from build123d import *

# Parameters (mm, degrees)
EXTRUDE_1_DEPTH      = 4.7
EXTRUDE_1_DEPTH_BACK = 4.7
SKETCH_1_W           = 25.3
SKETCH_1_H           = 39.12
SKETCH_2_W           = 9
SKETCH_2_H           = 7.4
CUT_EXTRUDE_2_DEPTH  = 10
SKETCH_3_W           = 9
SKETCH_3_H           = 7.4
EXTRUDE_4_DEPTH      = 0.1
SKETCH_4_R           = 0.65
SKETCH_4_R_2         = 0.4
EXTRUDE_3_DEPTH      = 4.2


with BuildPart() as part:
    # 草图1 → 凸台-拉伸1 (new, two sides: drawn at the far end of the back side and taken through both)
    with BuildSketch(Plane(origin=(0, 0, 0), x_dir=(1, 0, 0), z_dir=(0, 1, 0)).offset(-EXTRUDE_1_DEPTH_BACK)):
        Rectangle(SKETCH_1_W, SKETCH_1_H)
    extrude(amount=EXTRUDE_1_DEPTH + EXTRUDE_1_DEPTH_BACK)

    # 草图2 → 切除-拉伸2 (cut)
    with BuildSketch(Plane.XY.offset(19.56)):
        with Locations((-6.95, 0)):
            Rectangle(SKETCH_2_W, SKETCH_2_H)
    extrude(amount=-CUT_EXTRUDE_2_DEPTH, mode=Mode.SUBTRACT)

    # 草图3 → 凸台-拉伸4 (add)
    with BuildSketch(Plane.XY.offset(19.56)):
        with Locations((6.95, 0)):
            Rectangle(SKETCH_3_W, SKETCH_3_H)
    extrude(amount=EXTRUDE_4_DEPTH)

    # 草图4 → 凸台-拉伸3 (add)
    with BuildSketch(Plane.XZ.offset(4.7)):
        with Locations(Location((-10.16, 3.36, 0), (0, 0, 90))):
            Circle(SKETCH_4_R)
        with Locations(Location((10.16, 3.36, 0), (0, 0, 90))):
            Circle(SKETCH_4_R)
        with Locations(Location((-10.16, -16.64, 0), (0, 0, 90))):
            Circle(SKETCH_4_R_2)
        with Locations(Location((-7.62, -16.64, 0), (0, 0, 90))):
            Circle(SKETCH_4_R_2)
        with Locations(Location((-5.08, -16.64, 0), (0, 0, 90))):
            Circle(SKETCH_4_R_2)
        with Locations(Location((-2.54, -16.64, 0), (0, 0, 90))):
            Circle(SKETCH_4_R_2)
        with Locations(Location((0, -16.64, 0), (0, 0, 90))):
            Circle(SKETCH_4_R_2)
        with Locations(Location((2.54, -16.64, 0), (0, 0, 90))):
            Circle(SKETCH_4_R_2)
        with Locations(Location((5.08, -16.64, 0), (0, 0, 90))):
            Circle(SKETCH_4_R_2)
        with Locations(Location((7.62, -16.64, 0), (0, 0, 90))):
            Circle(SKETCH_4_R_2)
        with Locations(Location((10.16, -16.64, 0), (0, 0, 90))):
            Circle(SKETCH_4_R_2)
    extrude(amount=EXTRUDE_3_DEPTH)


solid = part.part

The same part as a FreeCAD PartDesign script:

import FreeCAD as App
import Part
import Sketcher
from FreeCAD import Vector
Q = App.Units.Quantity

doc = App.newDocument("Part")
params = doc.addObject("Spreadsheet::Sheet", "Params")
for row, (alias, value) in enumerate([
    ("sketch1_width", "25.3 mm"),
    ("sketch1_height", "39.12 mm"),
    ("pad1_length", "4.7 mm"),
    ("pad1_length2", "4.7 mm"),
    ("sketch2_width", "9 mm"),
    ("sketch2_height", "7.4 mm"),
    ("pocket1_length", "10 mm"),
    ("sketch3_width", "9 mm"),
    ("sketch3_height", "7.4 mm"),
    ("pad2_length", "0.1 mm"),
    ("sketch4_diameter", "1.3 mm"),
    ("sketch4_diameter2", "0.8 mm"),
    ("pad3_length", "4.2 mm"),
], start=1):
    params.set(f"A{row}", alias)
    params.set(f"B{row}", "=" + value)
    params.setAlias(f"B{row}", alias)

body = doc.addObject("PartDesign::Body", "Body")

sketch1 = body.newObject("Sketcher::SketchObject", "Sketch")
sketch1.AttachmentSupport = (doc.getObject("XZ_Plane"), [""])
sketch1.MapMode = "FlatFace"
sketch1.addGeometry([
    Part.LineSegment(Vector(-13, -20, 0), Vector(-13, 20, 0)),
    Part.LineSegment(Vector(-13, 20, 0), Vector(13, 20, 0)),
    Part.LineSegment(Vector(13, 20, 0), Vector(13, -20, 0)),
    Part.LineSegment(Vector(13, -20, 0), Vector(-13, -20, 0)),
], False)
sketch1.addConstraint([
    Sketcher.Constraint("Coincident", 0, 2, 1, 1),
    Sketcher.Constraint("Coincident", 1, 2, 2, 1),
    Sketcher.Constraint("Coincident", 2, 2, 3, 1),
    Sketcher.Constraint("Coincident", 3, 2, 0, 1),
    Sketcher.Constraint("Vertical", 0),
    Sketcher.Constraint("Horizontal", 1),
    Sketcher.Constraint("Vertical", 2),
    Sketcher.Constraint("Horizontal", 3),
    Sketcher.Constraint("Symmetric", 0, 2, 2, 2, -1, 1),
    Sketcher.Constraint("DistanceX", 1, 1, 1, 2, Q("25.3 mm")),
    Sketcher.Constraint("DistanceY", 0, 1, 0, 2, Q("39.12 mm")),
])
sketch1.setExpression("Constraints[9]", "Params.sketch1_width")
sketch1.setExpression("Constraints[10]", "Params.sketch1_height")
pad1 = body.newObject("PartDesign::Pad", "Pad")
pad1.Profile = sketch1
pad1.Type = "TwoLengths"
pad1.setExpression("Length", "Params.pad1_length")
pad1.setExpression("Length2", "Params.pad1_length2")
pad1.Reversed = True

sketch2 = body.newObject("Sketcher::SketchObject", "Sketch001")
sketch2.AttachmentSupport = (doc.getObject("XY_Plane"), [""])
sketch2.MapMode = "FlatFace"
sketch2.AttachmentOffset = App.Placement(Vector(0, 0, 19.56), App.Rotation())
sketch2.addGeometry([
    Part.LineSegment(Vector(-11, 4, 0), Vector(-11, -4, 0)),
    Part.LineSegment(Vector(-11, -4, 0), Vector(-2, -4, 0)),
    Part.LineSegment(Vector(-2, -4, 0), Vector(-2, 4, 0)),
    Part.LineSegment(Vector(-2, 4, 0), Vector(-11, 4, 0)),
], False)
sketch2.addConstraint([
    Sketcher.Constraint("Coincident", 0, 2, 1, 1),
    Sketcher.Constraint("Coincident", 1, 2, 2, 1),
    Sketcher.Constraint("Coincident", 2, 2, 3, 1),
    Sketcher.Constraint("Coincident", 3, 2, 0, 1),
    Sketcher.Constraint("Vertical", 0),
    Sketcher.Constraint("Horizontal", 1),
    Sketcher.Constraint("Vertical", 2),
    Sketcher.Constraint("Horizontal", 3),
    Sketcher.Constraint("DistanceX", 1, 1, 1, 2, Q("9 mm")),
    Sketcher.Constraint("DistanceY", 0, 2, 0, 1, Q("7.4 mm")),
    Sketcher.Constraint("DistanceY", 0, 2, -1, 1, Q("3.7 mm")),
    Sketcher.Constraint("DistanceX", 0, 2, -1, 1, Q("11.45 mm")),
])
sketch2.setExpression("Constraints[8]", "Params.sketch2_width")
sketch2.setExpression("Constraints[9]", "Params.sketch2_height")
pocket1 = body.newObject("PartDesign::Pocket", "Pocket")
pocket1.Profile = sketch2
pocket1.setExpression("Length", "Params.pocket1_length")

sketch3 = body.newObject("Sketcher::SketchObject", "Sketch002")
sketch3.AttachmentSupport = (doc.getObject("XY_Plane"), [""])
sketch3.MapMode = "FlatFace"
sketch3.AttachmentOffset = App.Placement(Vector(0, 0, 19.56), App.Rotation())
sketch3.addGeometry([
    Part.LineSegment(Vector(2, 4, 0), Vector(2, -4, 0)),
    Part.LineSegment(Vector(2, -4, 0), Vector(11, -4, 0)),
    Part.LineSegment(Vector(11, -4, 0), Vector(11, 4, 0)),
    Part.LineSegment(Vector(11, 4, 0), Vector(2, 4, 0)),
], False)
sketch3.addConstraint([
    Sketcher.Constraint("Coincident", 0, 2, 1, 1),
    Sketcher.Constraint("Coincident", 1, 2, 2, 1),
    Sketcher.Constraint("Coincident", 2, 2, 3, 1),
    Sketcher.Constraint("Coincident", 3, 2, 0, 1),
    Sketcher.Constraint("Vertical", 0),
    Sketcher.Constraint("Horizontal", 1),
    Sketcher.Constraint("Vertical", 2),
    Sketcher.Constraint("Horizontal", 3),
    Sketcher.Constraint("DistanceX", 1, 1, 1, 2, Q("9 mm")),
    Sketcher.Constraint("DistanceY", 0, 2, 0, 1, Q("7.4 mm")),
    Sketcher.Constraint("DistanceY", 0, 2, -1, 1, Q("3.7 mm")),
    Sketcher.Constraint("DistanceX", -1, 1, 0, 2, Q("2.45 mm")),
])
sketch3.setExpression("Constraints[8]", "Params.sketch3_width")
sketch3.setExpression("Constraints[9]", "Params.sketch3_height")
pad2 = body.newObject("PartDesign::Pad", "Pad001")
pad2.Profile = sketch3
pad2.setExpression("Length", "Params.pad2_length")

sketch4 = body.newObject("Sketcher::SketchObject", "Sketch003")
sketch4.AttachmentSupport = (doc.getObject("XZ_Plane"), [""])
sketch4.MapMode = "FlatFace"
sketch4.AttachmentOffset = App.Placement(Vector(0, 0, 4.7), App.Rotation())
sketch4.addGeometry([
    Part.Circle(Vector(-10.16, 3.36, 0), Vector(0, 0, 1), 0.65),
    Part.Circle(Vector(10.16, 3.36, 0), Vector(0, 0, 1), 0.65),
    Part.Circle(Vector(-10.16, -16.64, 0), Vector(0, 0, 1), 0.4),
    Part.Circle(Vector(-7.62, -16.64, 0), Vector(0, 0, 1), 0.4),
    Part.Circle(Vector(-5.08, -16.64, 0), Vector(0, 0, 1), 0.4),
    Part.Circle(Vector(-2.54, -16.64, 0), Vector(0, 0, 1), 0.4),
    Part.Circle(Vector(0, -16.64, 0), Vector(0, 0, 1), 0.4),
    Part.Circle(Vector(2.54, -16.64, 0), Vector(0, 0, 1), 0.4),
    Part.Circle(Vector(5.08, -16.64, 0), Vector(0, 0, 1), 0.4),
    Part.Circle(Vector(7.62, -16.64, 0), Vector(0, 0, 1), 0.4),
    Part.Circle(Vector(10.16, -16.64, 0), Vector(0, 0, 1), 0.4),
], False)
sketch4.addConstraint([
    Sketcher.Constraint("Equal", 0, 1),
    Sketcher.Constraint("Equal", 2, 3),
    Sketcher.Constraint("Equal", 3, 4),
    Sketcher.Constraint("Equal", 4, 5),
    Sketcher.Constraint("Equal", 5, 6),
    Sketcher.Constraint("Equal", 6, 7),
    Sketcher.Constraint("Equal", 7, 8),
    Sketcher.Constraint("Equal", 8, 9),
    Sketcher.Constraint("Equal", 9, 10),
    Sketcher.Constraint("Symmetric", 0, 3, 1, 3, -2),
    Sketcher.Constraint("Symmetric", 5, 3, 7, 3, -2),
    Sketcher.Constraint("Symmetric", 4, 3, 8, 3, -2),
    Sketcher.Constraint("Symmetric", 3, 3, 9, 3, -2),
    Sketcher.Constraint("Symmetric", 2, 3, 10, 3, -2),
    Sketcher.Constraint("PointOnObject", 6, 3, -2),
    Sketcher.Constraint("Horizontal", 2, 3, 3, 3),
    Sketcher.Constraint("Horizontal", 3, 3, 4, 3),
    Sketcher.Constraint("Horizontal", 4, 3, 5, 3),
    Sketcher.Constraint("Horizontal", 5, 3, 6, 3),
    Sketcher.Constraint("Vertical", 0, 3, 2, 3),
    Sketcher.Constraint("Diameter", 0, Q("1.3 mm")),
    Sketcher.Constraint("Diameter", 2, Q("0.8 mm")),
    Sketcher.Constraint("DistanceY", 2, 3, 0, 3, Q("20 mm")),
    Sketcher.Constraint("DistanceX", 5, 3, 1, 3, Q("12.7 mm")),
    Sketcher.Constraint("DistanceX", 3, 3, 8, 3, Q("12.7 mm")),
    Sketcher.Constraint("DistanceX", 0, 3, -1, 1, Q("10.16 mm")),
    Sketcher.Constraint("DistanceY", -1, 1, 0, 3, Q("3.36 mm")),
    Sketcher.Constraint("DistanceX", 3, 3, -1, 1, Q("7.62 mm")),
])
sketch4.setExpression("Constraints[20]", "Params.sketch4_diameter")
sketch4.setExpression("Constraints[21]", "Params.sketch4_diameter2")
pad3 = body.newObject("PartDesign::Pad", "Pad002")
pad3.Profile = sketch4
pad3.setExpression("Length", "Params.pad3_length")

doc.recompute()
